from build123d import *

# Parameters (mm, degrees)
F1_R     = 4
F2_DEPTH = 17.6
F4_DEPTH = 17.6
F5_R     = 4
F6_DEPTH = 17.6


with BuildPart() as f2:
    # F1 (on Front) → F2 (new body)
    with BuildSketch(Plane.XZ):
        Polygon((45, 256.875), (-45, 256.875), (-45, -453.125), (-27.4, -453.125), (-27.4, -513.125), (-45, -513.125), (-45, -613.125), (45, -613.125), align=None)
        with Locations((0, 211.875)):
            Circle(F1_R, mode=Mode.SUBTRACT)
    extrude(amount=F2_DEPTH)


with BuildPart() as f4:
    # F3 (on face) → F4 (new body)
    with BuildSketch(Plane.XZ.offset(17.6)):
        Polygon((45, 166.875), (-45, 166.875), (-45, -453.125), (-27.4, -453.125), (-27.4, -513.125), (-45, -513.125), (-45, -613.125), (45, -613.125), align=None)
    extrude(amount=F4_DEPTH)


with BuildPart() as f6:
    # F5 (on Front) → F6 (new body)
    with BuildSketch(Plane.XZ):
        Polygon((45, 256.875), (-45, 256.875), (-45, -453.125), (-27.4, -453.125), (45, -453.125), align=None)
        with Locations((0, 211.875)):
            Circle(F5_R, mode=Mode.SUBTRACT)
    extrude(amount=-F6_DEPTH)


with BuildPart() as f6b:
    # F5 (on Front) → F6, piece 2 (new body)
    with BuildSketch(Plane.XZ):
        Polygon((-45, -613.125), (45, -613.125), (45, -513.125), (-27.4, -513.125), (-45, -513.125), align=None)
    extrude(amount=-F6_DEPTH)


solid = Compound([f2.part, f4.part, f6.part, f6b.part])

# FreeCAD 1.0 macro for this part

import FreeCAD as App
import Part
import Sketcher

V = App.Vector
Q = App.Units.Quantity


def add_polygon(sketch, points):
    """Adds a closed chain of lines whose ends are joined by coincident constraints."""
    first, n = sketch.GeometryCount, len(points)
    for a, b in zip(points, points[1:] + points[:1]):
        sketch.addGeometry(Part.LineSegment(App.Vector(*a, 0), App.Vector(*b, 0)), False)
    for i in range(n):
        sketch.addConstraint(Sketcher.Constraint("Coincident", first + i, 2, first + (i + 1) % n, 1))

doc = App.newDocument("Part")
body = doc.addObject("PartDesign::Body", "Body")

sketch1 = doc.addObject("Sketcher::SketchObject", "Sketch")
body.addObject(sketch1)
sketch1.AttachmentSupport = (doc.XZ_Plane, [""])
sketch1.MapMode = "FlatFace"
add_polygon(sketch1, [(45, 256.9), (-45, 256.9), (-45, -453.1), (-27.4, -453.1), (-27.4, -513.1), (-45, -513.1), (-45, -613.1), (45, -613.1)])
sketch1.addGeometry(Part.Circle(V(0, 211.9, 0), V(0, 0, 1), 4), False)
sketch1.addConstraint(Sketcher.Constraint("Horizontal", 0))
sketch1.addConstraint(Sketcher.Constraint("Vertical", 1))
sketch1.addConstraint(Sketcher.Constraint("Horizontal", 2))
sketch1.addConstraint(Sketcher.Constraint("Vertical", 3))
sketch1.addConstraint(Sketcher.Constraint("Horizontal", 4))
sketch1.addConstraint(Sketcher.Constraint("Vertical", 5))
sketch1.addConstraint(Sketcher.Constraint("Horizontal", 6))
sketch1.addConstraint(Sketcher.Constraint("Vertical", 7))
sketch1.addConstraint(Sketcher.Constraint("PointOnObject", 8, 3, -2))
sketch1.addConstraint(Sketcher.Constraint("Vertical", 1, 2, 4, 2))
sketch1.addConstraint(Sketcher.Constraint("Diameter", 8, Q("8 mm")))
sketch1.addConstraint(Sketcher.Constraint("DistanceX", 0, 2, 0, 1, Q("90 mm")))
sketch1.addConstraint(Sketcher.Constraint("DistanceY", 1, 2, 1, 1, Q("710 mm")))
sketch1.addConstraint(Sketcher.Constraint("DistanceY", 3, 2, 3, 1, Q("60 mm")))
sketch1.addConstraint(Sketcher.Constraint("DistanceY", 5, 2, 5, 1, Q("100 mm")))
sketch1.addConstraint(Sketcher.Constraint("DistanceX", 2, 1, 2, 2, Q("17.6 mm")))
sketch1.addConstraint(Sketcher.Constraint("DistanceX", 0, 2, -1, 1, Q("45 mm")))
sketch1.addConstraint(Sketcher.Constraint("DistanceY", 8, 3, 0, 2, Q("45 mm")))
sketch1.addConstraint(Sketcher.Constraint("DistanceY", -1, 1, 8, 3, Q("211.875 mm")))
pad1 = doc.addObject("PartDesign::Pad", "Pad")
body.addObject(pad1)
pad1.Profile = sketch1
pad1.Length = 17.6
body2 = doc.addObject("PartDesign::Body", "Body001")

sketch2 = doc.addObject("Sketcher::SketchObject", "Sketch001")
body2.addObject(sketch2)
sketch2.AttachmentSupport = (doc.getObject("XZ_Plane001"), [""])
sketch2.MapMode = "FlatFace"
sketch2.AttachmentOffset = App.Placement(V(0, 0, 17.6), App.Rotation())
add_polygon(sketch2, [(45, 167), (-45, 167), (-45, -453), (-27, -453), (-27, -513), (-45, -513), (-45, -613), (45, -613)])
sketch2.addConstraint(Sketcher.Constraint("Horizontal", 0))
sketch2.addConstraint(Sketcher.Constraint("Vertical", 1))
sketch2.addConstraint(Sketcher.Constraint("Horizontal", 2))
sketch2.addConstraint(Sketcher.Constraint("Vertical", 3))
sketch2.addConstraint(Sketcher.Constraint("Horizontal", 4))
sketch2.addConstraint(Sketcher.Constraint("Vertical", 5))
sketch2.addConstraint(Sketcher.Constraint("Horizontal", 6))
sketch2.addConstraint(Sketcher.Constraint("Vertical", 7))
sketch2.addConstraint(Sketcher.Constraint("Vertical", 1, 2, 4, 2))
sketch2.addConstraint(Sketcher.Constraint("DistanceX", 0, 2, 0, 1, Q("90 mm")))
sketch2.addConstraint(Sketcher.Constraint("DistanceY", 1, 2, 1, 1, Q("620 mm")))
sketch2.addConstraint(Sketcher.Constraint("DistanceY", 3, 2, 3, 1, Q("60 mm")))
sketch2.addConstraint(Sketcher.Constraint("DistanceY", 5, 2, 5, 1, Q("100 mm")))
sketch2.addConstraint(Sketcher.Constraint("DistanceX", 2, 1, 2, 2, Q("17.6 mm")))
sketch2.addConstraint(Sketcher.Constraint("DistanceX", 0, 2, -1, 1, Q("45 mm")))
sketch2.addConstraint(Sketcher.Constraint("DistanceY", -1, 1, 0, 2, Q("166.875 mm")))
pad2 = doc.addObject("PartDesign::Pad", "Pad001")
body2.addObject(pad2)
pad2.Profile = sketch2
pad2.Length = 17.6
body3 = doc.addObject("PartDesign::Body", "Body002")

sketch3 = doc.addObject("Sketcher::SketchObject", "Sketch002")
body3.addObject(sketch3)
sketch3.AttachmentSupport = (doc.getObject("XZ_Plane002"), [""])
sketch3.MapMode = "FlatFace"
add_polygon(sketch3, [(45, 256.9), (-45, 256.9), (-45, -453.1), (45, -453.1)])
sketch3.addGeometry(Part.Circle(V(0, 211.9, 0), V(0, 0, 1), 4), False)
sketch3.addConstraint(Sketcher.Constraint("Horizontal", 0))
sketch3.addConstraint(Sketcher.Constraint("Vertical", 1))
sketch3.addConstraint(Sketcher.Constraint("Horizontal", 2))
sketch3.addConstraint(Sketcher.Constraint("Vertical", 3))
sketch3.addConstraint(Sketcher.Constraint("PointOnObject", 4, 3, -2))
sketch3.addConstraint(Sketcher.Constraint("Diameter", 4, Q("8 mm")))
sketch3.addConstraint(Sketcher.Constraint("DistanceX", 0, 2, 0, 1, Q("90 mm")))
sketch3.addConstraint(Sketcher.Constraint("DistanceY", 1, 2, 1, 1, Q("710 mm")))
sketch3.addConstraint(Sketcher.Constraint("DistanceX", 0, 2, -1, 1, Q("45 mm")))
sketch3.addConstraint(Sketcher.Constraint("DistanceY", 4, 3, 0, 2, Q("45 mm")))
sketch3.addConstraint(Sketcher.Constraint("DistanceY", -1, 1, 4, 3, Q("211.875 mm")))
pad3 = doc.addObject("PartDesign::Pad", "Pad002")
body3.addObject(pad3)
pad3.Profile = sketch3
pad3.Length = 17.6
pad3.Reversed = True
body4 = doc.addObject("PartDesign::Body", "Body003")

sketch4 = doc.addObject("Sketcher::SketchObject", "Sketch003")
body4.addObject(sketch4)
sketch4.AttachmentSupport = (doc.getObject("XZ_Plane003"), [""])
sketch4.MapMode = "FlatFace"
add_polygon(sketch4, [(-45, -613), (45, -613), (45, -513), (-45, -513)])
sketch4.addConstraint(Sketcher.Constraint("Horizontal", 0))
sketch4.addConstraint(Sketcher.Constraint("Vertical", 1))
sketch4.addConstraint(Sketcher.Constraint("Horizontal", 2))
sketch4.addConstraint(Sketcher.Constraint("Vertical", 3))
sketch4.addConstraint(Sketcher.Constraint("DistanceX", 0, 1, 0, 2, Q("90 mm")))
sketch4.addConstraint(Sketcher.Constraint("DistanceY", 1, 1, 1, 2, Q("100 mm")))
sketch4.addConstraint(Sketcher.Constraint("DistanceX", -1, 1, 0, 2, Q("45 mm")))
sketch4.addConstraint(Sketcher.Constraint("DistanceY", 0, 2, -1, 1, Q("613.125 mm")))
pad4 = doc.addObject("PartDesign::Pad", "Pad003")
body4.addObject(pad4)
pad4.Profile = sketch4
pad4.Length = 17.6
pad4.Reversed = True

doc.recompute()
